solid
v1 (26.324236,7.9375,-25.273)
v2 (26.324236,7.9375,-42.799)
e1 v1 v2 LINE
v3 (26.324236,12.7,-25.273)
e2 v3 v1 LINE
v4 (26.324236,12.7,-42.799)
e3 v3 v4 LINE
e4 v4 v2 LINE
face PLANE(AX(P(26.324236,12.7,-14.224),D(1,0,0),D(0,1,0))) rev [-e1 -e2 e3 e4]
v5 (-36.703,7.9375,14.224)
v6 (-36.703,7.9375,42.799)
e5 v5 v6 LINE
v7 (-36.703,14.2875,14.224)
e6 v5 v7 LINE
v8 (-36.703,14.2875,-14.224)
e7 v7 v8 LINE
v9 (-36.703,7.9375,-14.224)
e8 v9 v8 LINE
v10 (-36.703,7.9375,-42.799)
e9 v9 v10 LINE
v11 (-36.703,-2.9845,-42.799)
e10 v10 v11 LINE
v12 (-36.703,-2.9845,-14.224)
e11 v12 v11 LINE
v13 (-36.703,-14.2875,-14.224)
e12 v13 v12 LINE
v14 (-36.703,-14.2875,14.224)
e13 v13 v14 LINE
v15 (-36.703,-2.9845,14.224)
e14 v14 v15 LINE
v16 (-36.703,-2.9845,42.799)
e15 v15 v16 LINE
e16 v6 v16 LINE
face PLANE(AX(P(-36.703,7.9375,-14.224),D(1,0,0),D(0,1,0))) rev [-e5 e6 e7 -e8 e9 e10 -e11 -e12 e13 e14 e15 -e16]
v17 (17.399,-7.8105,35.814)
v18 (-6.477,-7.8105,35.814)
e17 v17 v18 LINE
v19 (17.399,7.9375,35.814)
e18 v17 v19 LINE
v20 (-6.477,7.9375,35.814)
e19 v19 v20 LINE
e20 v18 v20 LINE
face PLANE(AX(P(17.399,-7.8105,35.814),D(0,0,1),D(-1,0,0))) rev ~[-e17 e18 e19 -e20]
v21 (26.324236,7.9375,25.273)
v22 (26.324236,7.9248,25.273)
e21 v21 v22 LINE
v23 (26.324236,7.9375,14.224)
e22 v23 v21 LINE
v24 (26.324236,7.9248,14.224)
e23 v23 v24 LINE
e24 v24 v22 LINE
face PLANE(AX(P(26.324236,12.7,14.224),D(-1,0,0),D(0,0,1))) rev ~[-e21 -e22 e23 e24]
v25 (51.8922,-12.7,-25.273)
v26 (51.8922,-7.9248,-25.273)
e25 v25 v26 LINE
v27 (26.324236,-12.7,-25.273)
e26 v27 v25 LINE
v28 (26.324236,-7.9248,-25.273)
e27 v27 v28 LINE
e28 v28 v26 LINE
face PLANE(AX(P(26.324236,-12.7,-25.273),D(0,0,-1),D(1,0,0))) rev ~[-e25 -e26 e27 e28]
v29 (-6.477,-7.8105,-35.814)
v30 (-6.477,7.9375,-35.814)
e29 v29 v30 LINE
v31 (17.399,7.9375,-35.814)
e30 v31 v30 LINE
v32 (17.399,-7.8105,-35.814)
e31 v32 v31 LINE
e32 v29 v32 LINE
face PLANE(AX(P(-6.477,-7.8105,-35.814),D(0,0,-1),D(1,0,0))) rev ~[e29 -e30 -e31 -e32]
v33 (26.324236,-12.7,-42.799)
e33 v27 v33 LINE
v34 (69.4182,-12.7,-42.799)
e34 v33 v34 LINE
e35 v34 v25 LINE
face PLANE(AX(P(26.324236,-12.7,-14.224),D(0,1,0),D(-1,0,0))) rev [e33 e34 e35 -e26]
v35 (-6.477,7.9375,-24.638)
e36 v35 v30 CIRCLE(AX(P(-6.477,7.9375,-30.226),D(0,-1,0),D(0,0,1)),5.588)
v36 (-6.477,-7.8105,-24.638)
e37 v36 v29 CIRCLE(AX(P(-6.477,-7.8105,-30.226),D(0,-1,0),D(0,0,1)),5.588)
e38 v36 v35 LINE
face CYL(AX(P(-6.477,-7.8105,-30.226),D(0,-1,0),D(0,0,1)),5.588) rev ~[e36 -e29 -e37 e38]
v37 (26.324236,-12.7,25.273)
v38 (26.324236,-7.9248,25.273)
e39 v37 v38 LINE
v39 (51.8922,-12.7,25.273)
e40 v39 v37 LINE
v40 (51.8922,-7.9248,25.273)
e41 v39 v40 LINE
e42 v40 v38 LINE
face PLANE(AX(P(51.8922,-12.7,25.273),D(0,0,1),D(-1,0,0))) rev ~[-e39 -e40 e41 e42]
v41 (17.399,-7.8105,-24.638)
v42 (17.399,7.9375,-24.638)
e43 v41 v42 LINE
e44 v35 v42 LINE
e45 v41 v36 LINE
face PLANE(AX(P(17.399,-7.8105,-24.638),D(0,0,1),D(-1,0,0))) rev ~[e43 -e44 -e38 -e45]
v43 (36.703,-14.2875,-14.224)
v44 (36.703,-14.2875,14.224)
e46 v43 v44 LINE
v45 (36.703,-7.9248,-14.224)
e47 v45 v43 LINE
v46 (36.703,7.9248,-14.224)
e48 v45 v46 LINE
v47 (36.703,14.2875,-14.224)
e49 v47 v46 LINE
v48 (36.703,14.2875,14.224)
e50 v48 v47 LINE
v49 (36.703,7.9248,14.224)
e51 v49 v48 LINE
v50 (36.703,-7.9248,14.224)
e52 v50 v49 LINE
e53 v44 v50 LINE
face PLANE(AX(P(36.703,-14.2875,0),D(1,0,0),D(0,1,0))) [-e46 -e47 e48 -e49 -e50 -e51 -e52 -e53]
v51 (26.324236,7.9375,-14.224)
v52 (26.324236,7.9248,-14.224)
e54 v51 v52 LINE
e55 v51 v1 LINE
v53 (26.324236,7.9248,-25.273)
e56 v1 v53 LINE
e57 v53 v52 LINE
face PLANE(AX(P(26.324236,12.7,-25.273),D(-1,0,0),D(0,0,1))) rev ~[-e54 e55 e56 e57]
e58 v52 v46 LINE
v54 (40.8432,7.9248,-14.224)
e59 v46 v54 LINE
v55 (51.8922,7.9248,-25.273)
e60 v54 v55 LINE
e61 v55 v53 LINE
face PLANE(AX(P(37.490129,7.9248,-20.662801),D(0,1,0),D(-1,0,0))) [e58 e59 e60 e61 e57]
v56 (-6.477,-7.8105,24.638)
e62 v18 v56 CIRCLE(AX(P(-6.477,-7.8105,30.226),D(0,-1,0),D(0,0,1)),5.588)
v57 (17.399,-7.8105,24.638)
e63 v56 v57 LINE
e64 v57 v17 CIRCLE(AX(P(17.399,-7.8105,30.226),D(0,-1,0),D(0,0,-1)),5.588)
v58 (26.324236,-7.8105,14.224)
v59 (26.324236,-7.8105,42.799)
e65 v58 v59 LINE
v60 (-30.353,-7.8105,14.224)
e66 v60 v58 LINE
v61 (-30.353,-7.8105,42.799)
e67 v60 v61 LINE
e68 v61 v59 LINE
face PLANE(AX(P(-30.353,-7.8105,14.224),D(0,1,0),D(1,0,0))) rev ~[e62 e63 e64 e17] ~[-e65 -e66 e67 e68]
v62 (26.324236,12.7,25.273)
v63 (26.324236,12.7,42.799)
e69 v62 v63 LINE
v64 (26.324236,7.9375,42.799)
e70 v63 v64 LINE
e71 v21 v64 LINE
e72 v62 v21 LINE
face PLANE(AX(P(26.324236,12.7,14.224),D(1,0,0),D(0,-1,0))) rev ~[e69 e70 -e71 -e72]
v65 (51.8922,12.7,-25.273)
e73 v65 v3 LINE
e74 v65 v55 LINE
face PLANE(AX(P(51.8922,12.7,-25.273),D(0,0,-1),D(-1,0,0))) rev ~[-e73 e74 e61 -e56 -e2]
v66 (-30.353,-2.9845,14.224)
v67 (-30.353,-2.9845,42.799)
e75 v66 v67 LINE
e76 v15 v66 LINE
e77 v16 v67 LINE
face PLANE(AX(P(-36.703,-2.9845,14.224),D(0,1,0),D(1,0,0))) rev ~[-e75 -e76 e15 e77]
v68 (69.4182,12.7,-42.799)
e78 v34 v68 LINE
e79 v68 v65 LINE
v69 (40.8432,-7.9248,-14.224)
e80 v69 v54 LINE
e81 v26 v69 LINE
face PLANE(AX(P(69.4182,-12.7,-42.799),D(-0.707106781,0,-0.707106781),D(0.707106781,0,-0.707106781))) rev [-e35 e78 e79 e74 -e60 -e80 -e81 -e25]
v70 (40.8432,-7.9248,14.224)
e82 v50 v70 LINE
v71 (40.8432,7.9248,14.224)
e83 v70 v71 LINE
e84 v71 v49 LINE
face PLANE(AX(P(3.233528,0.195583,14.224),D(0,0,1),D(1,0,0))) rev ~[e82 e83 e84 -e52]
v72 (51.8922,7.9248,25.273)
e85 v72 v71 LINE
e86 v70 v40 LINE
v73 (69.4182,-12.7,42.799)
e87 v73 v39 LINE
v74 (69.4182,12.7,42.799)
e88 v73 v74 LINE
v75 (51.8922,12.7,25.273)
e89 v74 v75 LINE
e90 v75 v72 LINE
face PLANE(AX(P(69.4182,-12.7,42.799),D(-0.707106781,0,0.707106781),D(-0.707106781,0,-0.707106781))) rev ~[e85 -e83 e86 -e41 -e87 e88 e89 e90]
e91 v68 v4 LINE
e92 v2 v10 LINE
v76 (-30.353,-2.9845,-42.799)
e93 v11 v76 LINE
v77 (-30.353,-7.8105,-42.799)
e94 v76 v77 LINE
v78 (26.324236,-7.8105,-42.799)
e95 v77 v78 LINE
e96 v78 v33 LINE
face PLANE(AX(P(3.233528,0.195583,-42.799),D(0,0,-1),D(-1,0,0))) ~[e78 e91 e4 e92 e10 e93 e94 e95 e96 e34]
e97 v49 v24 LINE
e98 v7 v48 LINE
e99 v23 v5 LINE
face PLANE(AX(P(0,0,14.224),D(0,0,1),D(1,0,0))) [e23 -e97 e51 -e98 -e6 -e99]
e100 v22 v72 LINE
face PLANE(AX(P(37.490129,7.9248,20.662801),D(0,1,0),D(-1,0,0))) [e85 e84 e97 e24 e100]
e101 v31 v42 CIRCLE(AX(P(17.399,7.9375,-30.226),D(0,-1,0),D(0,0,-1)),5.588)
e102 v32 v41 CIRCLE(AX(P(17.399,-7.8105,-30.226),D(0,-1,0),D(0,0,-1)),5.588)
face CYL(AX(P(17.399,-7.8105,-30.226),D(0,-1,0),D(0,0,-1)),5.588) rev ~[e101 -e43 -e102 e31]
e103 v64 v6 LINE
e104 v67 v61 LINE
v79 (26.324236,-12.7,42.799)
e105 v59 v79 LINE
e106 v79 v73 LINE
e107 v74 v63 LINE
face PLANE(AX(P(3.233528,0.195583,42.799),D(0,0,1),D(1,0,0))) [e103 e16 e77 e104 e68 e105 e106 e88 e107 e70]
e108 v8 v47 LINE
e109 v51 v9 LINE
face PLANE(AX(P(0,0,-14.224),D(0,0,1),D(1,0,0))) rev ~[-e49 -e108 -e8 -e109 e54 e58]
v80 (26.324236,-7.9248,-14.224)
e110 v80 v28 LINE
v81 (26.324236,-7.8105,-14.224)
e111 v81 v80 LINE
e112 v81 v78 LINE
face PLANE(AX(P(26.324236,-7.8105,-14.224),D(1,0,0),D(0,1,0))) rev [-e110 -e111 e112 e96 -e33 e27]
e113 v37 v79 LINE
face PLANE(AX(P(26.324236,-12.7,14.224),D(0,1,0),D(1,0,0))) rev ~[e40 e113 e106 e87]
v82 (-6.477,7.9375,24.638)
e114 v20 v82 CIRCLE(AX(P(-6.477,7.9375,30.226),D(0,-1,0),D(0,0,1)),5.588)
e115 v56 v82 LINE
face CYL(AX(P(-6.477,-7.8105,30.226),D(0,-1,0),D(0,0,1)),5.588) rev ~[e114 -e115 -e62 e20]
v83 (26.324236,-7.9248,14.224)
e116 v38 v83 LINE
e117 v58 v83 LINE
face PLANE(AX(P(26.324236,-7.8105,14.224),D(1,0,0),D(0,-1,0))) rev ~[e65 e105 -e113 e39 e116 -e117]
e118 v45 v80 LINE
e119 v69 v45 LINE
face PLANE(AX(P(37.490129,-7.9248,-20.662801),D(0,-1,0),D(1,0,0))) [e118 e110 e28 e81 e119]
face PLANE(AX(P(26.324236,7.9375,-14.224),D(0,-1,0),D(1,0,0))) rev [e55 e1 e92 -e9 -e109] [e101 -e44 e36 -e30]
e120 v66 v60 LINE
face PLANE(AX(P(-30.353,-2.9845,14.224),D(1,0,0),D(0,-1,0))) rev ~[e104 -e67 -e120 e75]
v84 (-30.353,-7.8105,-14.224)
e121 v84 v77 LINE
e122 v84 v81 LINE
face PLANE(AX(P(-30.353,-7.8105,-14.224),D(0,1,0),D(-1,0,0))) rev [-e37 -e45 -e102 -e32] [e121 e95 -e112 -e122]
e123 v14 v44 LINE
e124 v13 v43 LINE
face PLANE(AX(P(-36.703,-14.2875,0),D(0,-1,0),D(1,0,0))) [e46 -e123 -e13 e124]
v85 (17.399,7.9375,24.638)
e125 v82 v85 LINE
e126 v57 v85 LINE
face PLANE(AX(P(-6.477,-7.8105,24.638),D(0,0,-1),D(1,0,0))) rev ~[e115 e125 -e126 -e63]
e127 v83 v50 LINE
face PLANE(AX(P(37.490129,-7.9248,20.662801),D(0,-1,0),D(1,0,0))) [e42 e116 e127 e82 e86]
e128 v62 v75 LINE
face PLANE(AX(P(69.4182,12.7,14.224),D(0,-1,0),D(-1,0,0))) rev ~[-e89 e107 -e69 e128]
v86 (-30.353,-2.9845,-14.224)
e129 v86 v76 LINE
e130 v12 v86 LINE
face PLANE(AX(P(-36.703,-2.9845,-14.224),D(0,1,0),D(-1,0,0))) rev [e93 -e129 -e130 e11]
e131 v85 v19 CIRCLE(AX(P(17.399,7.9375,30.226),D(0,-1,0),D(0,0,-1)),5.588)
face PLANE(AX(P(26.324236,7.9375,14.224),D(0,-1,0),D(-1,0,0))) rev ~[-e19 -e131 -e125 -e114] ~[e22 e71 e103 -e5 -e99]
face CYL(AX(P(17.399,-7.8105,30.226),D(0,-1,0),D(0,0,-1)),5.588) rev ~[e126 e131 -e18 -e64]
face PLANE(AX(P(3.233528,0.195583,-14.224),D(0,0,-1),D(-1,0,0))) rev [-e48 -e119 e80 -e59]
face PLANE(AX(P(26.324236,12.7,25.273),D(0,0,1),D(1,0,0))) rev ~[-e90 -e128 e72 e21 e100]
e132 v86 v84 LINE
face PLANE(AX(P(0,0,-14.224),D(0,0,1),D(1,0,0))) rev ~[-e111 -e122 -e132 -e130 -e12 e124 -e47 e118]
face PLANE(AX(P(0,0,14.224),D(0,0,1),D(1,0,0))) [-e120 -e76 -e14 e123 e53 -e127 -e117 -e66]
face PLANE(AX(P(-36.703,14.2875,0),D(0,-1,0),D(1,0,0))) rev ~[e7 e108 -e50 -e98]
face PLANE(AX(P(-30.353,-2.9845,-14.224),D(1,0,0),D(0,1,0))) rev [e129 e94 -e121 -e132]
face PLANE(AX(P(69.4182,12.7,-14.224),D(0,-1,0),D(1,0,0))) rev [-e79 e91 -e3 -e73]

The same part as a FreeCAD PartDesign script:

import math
import FreeCAD as App
import Part
import Sketcher
Q = App.Units.Quantity


def add_polygon(sketch, points):
    """Adds a closed chain of lines whose ends are joined by coincident constraints."""
    first, n = sketch.GeometryCount, len(points)
    for a, b in zip(points, points[1:] + points[:1]):
        sketch.addGeometry(Part.LineSegment(App.Vector(*a, 0), App.Vector(*b, 0)), False)
    for i in range(n):
        sketch.addConstraint(Sketcher.Constraint("Coincident", first + i, 2, first + (i + 1) % n, 1))

doc = App.newDocument("Part")
body = doc.addObject("PartDesign::Body", "Body")

sketch1 = body.newObject("Sketcher::SketchObject", "Sketch")
sketch1.AttachmentSupport = (doc.getObject("XY_Plane"), [""])
sketch1.MapMode = "FlatFace"
add_polygon(sketch1, [(-37, 14), (-37, -14), (37, -14), (37, 14)])
sketch1.addConstraint([
    Sketcher.Constraint("Vertical", 0),
    Sketcher.Constraint("Horizontal", 1),
    Sketcher.Constraint("Vertical", 2),
    Sketcher.Constraint("Horizontal", 3),
    Sketcher.Constraint("Symmetric", 0, 2, 2, 2, -1, 1),
    Sketcher.Constraint("DistanceX", 1, 1, 1, 2, Q("2.89 in")),
    Sketcher.Constraint("DistanceY", 0, 2, 0, 1, Q("1.125 in")),
])
pad1 = body.newObject("PartDesign::Pad", "Pad")
pad1.Profile = sketch1
pad1.Length = Q("1.12 in")
pad1.Midplane = True

sketch2 = body.newObject("Sketcher::SketchObject", "Sketch001")
sketch2.AttachmentSupport = (doc.getObject("XY_Plane"), [""])
sketch2.MapMode = "FlatFace"
sketch2.AttachmentOffset = App.Placement(App.Vector(0, 0, 0.56 * 25.4), App.Rotation())
add_polygon(sketch2, [(26.3, 7.9), (-36.7, 7.9), (-36.7, -3), (-30.4, -3), (-30.4, -7.8), (26.3, -7.8), (26.3, -12.7), (69.4, -12.7), (69.4, 12.7), (26.3, 12.7)])
sketch2.addConstraint([
    Sketcher.Constraint("Horizontal", 0),
    Sketcher.Constraint("Vertical", 1),
    Sketcher.Constraint("Horizontal", 2),
    Sketcher.Constraint("Vertical", 3),
    Sketcher.Constraint("Horizontal", 4),
    Sketcher.Constraint("Vertical", 5),
    Sketcher.Constraint("Horizontal", 6),
    Sketcher.Constraint("Vertical", 7),
    Sketcher.Constraint("Horizontal", 8),
    Sketcher.Constraint("Vertical", 9),
    Sketcher.Constraint("Symmetric", 5, 2, 8, 2, -1),
    Sketcher.Constraint("DistanceY", 7, 1, 7, 2, Q("1 in")),
    Sketcher.Constraint("DistanceX", 2, 1, 2, 2, Q("0.25 in")),
    Sketcher.Constraint("DistanceY", 1, 2, 1, 1, Q("0.43 in")),
    Sketcher.Constraint("DistanceY", 3, 2, 3, 1, Q("0.19 in")),
    Sketcher.Constraint("DistanceY", 9, 2, 9, 1, Q("0.1875 in")),
    Sketcher.Constraint("DistanceX", 0, 2, -1, 1, Q("1.445 in")),
    Sketcher.Constraint("DistanceX", -1, 1, 6, 2, Q("2.733 in")),
    Sketcher.Constraint("DistanceX", 0, 2, 0, 1, 63.027236),
])
pad2 = body.newObject("PartDesign::Pad", "Pad001")
pad2.Profile = sketch2
pad2.Length = Q("1.125 in")

sketch3 = body.newObject("Sketcher::SketchObject", "Sketch002")
sketch3.AttachmentSupport = (doc.getObject("XZ_Plane"), [""])
sketch3.MapMode = "FlatFace"
sketch3.AttachmentOffset = App.Placement(App.Vector(0, 0, 0.5 * 25.4), App.Rotation())
add_polygon(sketch3, [(69, 14), (69, 43), (41, 14)])
sketch3.addConstraint([
    Sketcher.Constraint("Vertical", 0),
    Sketcher.Constraint("Horizontal", 2),
    Sketcher.Constraint("Equal", 2, 0),
    Sketcher.Constraint("DistanceX", 2, 1, 2, 2, Q("1.125 in")),
    Sketcher.Constraint("DistanceY", -1, 1, 1, 2, Q("0.56 in")),
    Sketcher.Constraint("DistanceX", -1, 1, 0, 2, Q("2.733 in")),
])
pocket1 = body.newObject("PartDesign::Pocket", "Pocket")
pocket1.Profile = sketch3
pocket1.Length = Q("5 in")
body2 = doc.addObject("PartDesign::Body", "Body001")
doc.recompute()

body2.BaseFeature = body
doc.recompute()

mirroring = doc.addObject("Part::Mirroring", "Mirroring")
mirroring.Source = body
mirroring.Base = App.Vector(0, 0, 0)
mirroring.Normal = App.Vector(0, 0, 1)
body3 = doc.addObject("PartDesign::Body", "Body002")
body3.BaseFeature = mirroring
boolean = body2.newObject("PartDesign::Boolean", "Boolean")
boolean.Type = "Fuse"
boolean.addObjects([body3])
doc.recompute()

sketch4 = body2.newObject("Sketcher::SketchObject", "Sketch003")
sketch4.AttachmentSupport = (doc.getObject("XZ_Plane001"), [""])
sketch4.MapMode = "FlatFace"
sketch4.AttachmentOffset = App.Placement(App.Vector(0, 0, 0.5 * 25.4), App.Rotation())
add_polygon(sketch4, [(52, 25), (26, 25), (26, 14), (41, 14)])
add_polygon(sketch4, [(26, -14), (26, -25), (52, -25), (41, -14)])
sketch4.addConstraint([
    Sketcher.Constraint("Horizontal", 0),
    Sketcher.Constraint("Vertical", 1),
    Sketcher.Constraint("Horizontal", 2),
    Sketcher.Constraint("Vertical", 4),
    Sketcher.Constraint("Horizontal", 5),
    Sketcher.Constraint("Horizontal", 7),
    Sketcher.Constraint("Symmetric", 0, 2, 4, 2, -1),
    Sketcher.Constraint("Symmetric", 2, 2, 6, 2, -1),
    Sketcher.Constraint("Perpendicular", 3, 6),
    Sketcher.Constraint("Vertical", 3, 2, 5, 2),
    Sketcher.Constraint("DistanceY", 1, 2, 1, 1, Q("0.435 in")),
    Sketcher.Constraint("DistanceY", -1, 1, 1, 2, Q("0.56 in")),
    Sketcher.Constraint("DistanceX", -1, 1, 2, 2, Q("1.608 in")),
    Sketcher.Constraint("DistanceX", 0, 2, 0, 1, 25.567964),
])
pocket2 = body2.newObject("PartDesign::Pocket", "Pocket001")
pocket2.Profile = sketch4
pocket2.Length = Q("0.188 in")

sketch5 = body2.newObject("Sketcher::SketchObject", "Sketch004")
sketch5.AttachmentSupport = (doc.getObject("XZ_Plane001"), [""])
sketch5.MapMode = "FlatFace"
sketch5.AttachmentOffset = App.Placement(App.Vector(0, 0, -0.5 * 25.4), App.Rotation())
add_polygon(sketch5, [(41, -14), (52, -25), (26, -25), (26, -14)])
sketch5.addConstraint([
    Sketcher.Constraint("Horizontal", 1),
    Sketcher.Constraint("Vertical", 2),
    Sketcher.Constraint("Horizontal", 3),
    Sketcher.Constraint("Angle", 0, Q("-45 deg")),
    Sketcher.Constraint("DistanceY", 2, 1, 2, 2, Q("0.435 in")),
    Sketcher.Constraint("DistanceY", 2, 2, -1, 1, Q("0.56 in")),
    Sketcher.Constraint("DistanceX", -1, 1, 0, 2, Q("2.043 in")),
    Sketcher.Constraint("DistanceX", 1, 2, 1, 1, 25.567964),
])
pocket3 = body2.newObject("PartDesign::Pocket", "Pocket002")
pocket3.Profile = sketch5
pocket3.Length = Q("0.188 in")
pocket3.Reversed = True

sketch6 = body2.newObject("Sketcher::SketchObject", "Sketch005")
sketch6.AttachmentSupport = (doc.getObject("XZ_Plane001"), [""])
sketch6.MapMode = "FlatFace"
sketch6.AttachmentOffset = App.Placement(App.Vector(0, 0, -0.5 * 25.4), App.Rotation())
add_polygon(sketch6, [(26, 25), (52, 25), (41, 14), (26, 14)])
sketch6.addConstraint([
    Sketcher.Constraint("Horizontal", 0),
    Sketcher.Constraint("Horizontal", 2),
    Sketcher.Constraint("Vertical", 3),
    Sketcher.Constraint("Angle", 1, Q("-135 deg")),
    Sketcher.Constraint("DistanceY", 3, 1, 3, 2, Q("0.435 in")),
    Sketcher.Constraint("DistanceY", -1, 1, 1, 2, Q("0.56 in")),
    Sketcher.Constraint("DistanceX", -1, 1, 0, 2, Q("2.043 in")),
    Sketcher.Constraint("DistanceX", 0, 1, 0, 2, 25.567964),
])
pocket4 = body2.newObject("PartDesign::Pocket", "Pocket003")
pocket4.Profile = sketch6
pocket4.Length = Q("0.188 in")
pocket4.Reversed = True

sketch7 = body2.newObject("Sketcher::SketchObject", "Sketch006")
sketch7.AttachmentSupport = (doc.getObject("XZ_Plane001"), [""])
sketch7.MapMode = "FlatFace"
sketch7.AttachmentOffset = App.Placement(App.Vector(0, 0, 0.3075 * 25.4), App.Rotation())
sketch7.addGeometry([
    Part.LineSegment(App.Vector(17, 36, 0), App.Vector(-6, 36, 0)),
    Part.ArcOfCircle(Part.Circle(App.Vector(-6, 30, 0), App.Vector(0, 0, 1), 6), math.radians(90), math.radians(270)),
    Part.LineSegment(App.Vector(-6, 25, 0), App.Vector(17, 25, 0)),
    Part.ArcOfCircle(Part.Circle(App.Vector(17, 30, 0), App.Vector(0, 0, 1), 6), math.radians(-90), math.radians(90)),
    Part.LineSegment(App.Vector(17, -25, 0), App.Vector(-6, -25, 0)),
    Part.ArcOfCircle(Part.Circle(App.Vector(-6, -30, 0), App.Vector(0, 0, 1), 6), math.radians(90), math.radians(270)),
    Part.LineSegment(App.Vector(-6, -36, 0), App.Vector(17, -36, 0)),
    Part.ArcOfCircle(Part.Circle(App.Vector(17, -30, 0), App.Vector(0, 0, 1), 6), math.radians(-90), math.radians(90)),
], False)
sketch7.addConstraint([
    Sketcher.Constraint("Tangent", 0, 2, 1, 1),
    Sketcher.Constraint("Tangent", 1, 2, 2, 1),
    Sketcher.Constraint("Tangent", 2, 2, 3, 1),
    Sketcher.Constraint("Tangent", 3, 2, 0, 1),
    Sketcher.Constraint("Tangent", 4, 2, 5, 1),
    Sketcher.Constraint("Tangent", 5, 2, 6, 1),
    Sketcher.Constraint("Tangent", 6, 2, 7, 1),
    Sketcher.Constraint("Tangent", 7, 2, 4, 1),
    Sketcher.Constraint("Horizontal", 0),
    Sketcher.Constraint("Horizontal", 2),
    Sketcher.Constraint("Horizontal", 4),
    Sketcher.Constraint("Horizontal", 6),
    Sketcher.Constraint("Equal", 3, 5),
    Sketcher.Constraint("Symmetric", 1, 3, 5, 3, -1),
    Sketcher.Constraint("Vertical", 3, 3, 7, 3),
    Sketcher.Constraint("Radius", 1, Q("0.22 in")),
    Sketcher.Constraint("DistanceX", 0, 2, 0, 1, Q("0.94 in")),
    Sketcher.Constraint("DistanceY", 5, 3, 0, 2, Q("2.6 in")),
    Sketcher.Constraint("DistanceX", 1, 3, -1, 1, Q("0.255 in")),
])
pocket5 = body2.newObject("PartDesign::Pocket", "Pocket004")
pocket5.Profile = sketch7
pocket5.Length = Q("1 in")
mirroring.Visibility = False

doc.recompute()
